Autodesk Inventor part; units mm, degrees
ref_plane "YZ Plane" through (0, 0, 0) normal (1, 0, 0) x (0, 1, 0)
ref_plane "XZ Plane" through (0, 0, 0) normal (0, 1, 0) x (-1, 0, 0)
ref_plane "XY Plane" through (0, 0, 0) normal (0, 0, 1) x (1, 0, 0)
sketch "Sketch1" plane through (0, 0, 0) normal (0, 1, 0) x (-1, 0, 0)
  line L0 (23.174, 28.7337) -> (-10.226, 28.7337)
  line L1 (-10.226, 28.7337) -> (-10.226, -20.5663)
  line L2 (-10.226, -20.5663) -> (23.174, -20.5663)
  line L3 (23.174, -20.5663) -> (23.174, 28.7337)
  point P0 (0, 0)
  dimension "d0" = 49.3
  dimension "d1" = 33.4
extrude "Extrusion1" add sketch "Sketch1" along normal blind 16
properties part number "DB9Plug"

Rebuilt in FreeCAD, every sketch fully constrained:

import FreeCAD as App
import Part
import Sketcher
from FreeCAD import Vector


def add_polygon(sketch, points):
    """Adds a closed chain of lines whose ends are joined by coincident constraints."""
    first, n = sketch.GeometryCount, len(points)
    for a, b in zip(points, points[1:] + points[:1]):
        sketch.addGeometry(Part.LineSegment(App.Vector(*a, 0), App.Vector(*b, 0)), False)
    for i in range(n):
        sketch.addConstraint(Sketcher.Constraint("Coincident", first + i, 2, first + (i + 1) % n, 1))

doc = App.newDocument("Part")
params = doc.addObject("Spreadsheet::Sheet", "Params")
for row, (alias, value) in enumerate([
    ("sketch1_width", "33.4 mm"),
    ("sketch1_height", "49.3 mm"),
    ("pad1_length", "16 mm"),
], start=1):
    params.set(f"A{row}", alias)
    params.set(f"B{row}", "=" + value)
    params.setAlias(f"B{row}", alias)

body = doc.addObject("PartDesign::Body", "Body")

# Sketch on XZ plane
sketch1 = doc.addObject("Sketcher::SketchObject", "Sketch")
body.addObject(sketch1)
sketch1.AttachmentSupport = (doc.XZ_Plane, [""])
sketch1.MapMode = "FlatFace"
add_polygon(sketch1, [(-23.174, -20.5663), (-23.174, 28.7337), (10.226, 28.7337), (10.226, -20.5663)])  # lines 0-3
sketch1.addConstraint([
    Sketcher.Constraint("Vertical", 0),
    Sketcher.Constraint("Horizontal", 1),
    Sketcher.Constraint("Vertical", 2),
    Sketcher.Constraint("Horizontal", 3),
    Sketcher.Constraint("DistanceX", 1, 1, 1, 2, 33.4),
    Sketcher.Constraint("DistanceY", 0, 1, 0, 2, 49.3),
    Sketcher.Constraint("DistanceX", 0, 2, -1, 1, 23.174),
    Sketcher.Constraint("DistanceY", -1, 1, 0, 2, 28.7337),
])
sketch1.setExpression("Constraints[8]", "Params.sketch1_width")
sketch1.setExpression("Constraints[9]", "Params.sketch1_height")
pad1 = doc.addObject("PartDesign::Pad", "Pad")
body.addObject(pad1)
pad1.Profile = sketch1
pad1.setExpression("Length", "Params.pad1_length")
pad1.Reversed = True

doc.recompute()
